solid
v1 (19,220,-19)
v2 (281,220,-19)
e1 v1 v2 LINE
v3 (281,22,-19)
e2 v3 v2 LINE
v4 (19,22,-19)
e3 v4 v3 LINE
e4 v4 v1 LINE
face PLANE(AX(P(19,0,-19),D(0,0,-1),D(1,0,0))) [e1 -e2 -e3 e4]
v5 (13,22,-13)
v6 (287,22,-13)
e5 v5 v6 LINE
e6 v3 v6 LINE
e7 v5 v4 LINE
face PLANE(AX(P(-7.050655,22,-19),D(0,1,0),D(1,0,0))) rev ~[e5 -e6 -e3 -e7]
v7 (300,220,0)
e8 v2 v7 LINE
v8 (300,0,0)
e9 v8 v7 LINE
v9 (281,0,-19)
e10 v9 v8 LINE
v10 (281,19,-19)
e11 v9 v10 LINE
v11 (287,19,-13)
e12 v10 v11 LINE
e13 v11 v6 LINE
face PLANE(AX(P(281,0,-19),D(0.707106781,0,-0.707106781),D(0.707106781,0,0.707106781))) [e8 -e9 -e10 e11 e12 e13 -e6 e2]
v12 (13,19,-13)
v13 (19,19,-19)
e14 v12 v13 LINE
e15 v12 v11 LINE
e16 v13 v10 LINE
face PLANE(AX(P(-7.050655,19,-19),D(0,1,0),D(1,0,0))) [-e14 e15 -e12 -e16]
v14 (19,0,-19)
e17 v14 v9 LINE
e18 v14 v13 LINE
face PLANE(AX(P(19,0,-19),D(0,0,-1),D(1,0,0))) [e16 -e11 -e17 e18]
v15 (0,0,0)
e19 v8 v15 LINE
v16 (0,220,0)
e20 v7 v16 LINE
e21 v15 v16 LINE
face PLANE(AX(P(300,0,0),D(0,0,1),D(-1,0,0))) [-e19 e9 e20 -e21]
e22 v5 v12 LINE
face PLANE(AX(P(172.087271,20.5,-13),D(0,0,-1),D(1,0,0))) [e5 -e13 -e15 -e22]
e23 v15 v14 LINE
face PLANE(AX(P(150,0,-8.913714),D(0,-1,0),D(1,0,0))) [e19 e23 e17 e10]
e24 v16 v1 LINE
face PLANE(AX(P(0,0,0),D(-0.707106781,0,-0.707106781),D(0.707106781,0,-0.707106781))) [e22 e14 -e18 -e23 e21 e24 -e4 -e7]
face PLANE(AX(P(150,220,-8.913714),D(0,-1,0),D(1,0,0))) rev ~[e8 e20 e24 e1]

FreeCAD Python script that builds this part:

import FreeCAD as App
import Part
import Sketcher
from FreeCAD import Vector

doc = App.newDocument("Part")
body = doc.addObject("PartDesign::Body", "Body")

# Sketch on XZ plane
sketch1 = body.newObject("Sketcher::SketchObject", "Sketch")
sketch1.AttachmentSupport = (doc.getObject("XZ_Plane"), [""])
sketch1.MapMode = "FlatFace"
sketch1.addGeometry([
    Part.LineSegment(Vector(300, 0, 0), Vector(0, 0, 0)),
    Part.LineSegment(Vector(0, 0, 0), Vector(19, -19, 0)),
    Part.LineSegment(Vector(19, -19, 0), Vector(281, -19, 0)),
    Part.LineSegment(Vector(281, -19, 0), Vector(300, 0, 0)),
], False)
sketch1.addConstraint([
    Sketcher.Constraint("Coincident", 0, 2, 1, 1),
    Sketcher.Constraint("Coincident", 1, 2, 2, 1),
    Sketcher.Constraint("Coincident", 2, 2, 3, 1),
    Sketcher.Constraint("Coincident", 3, 2, 0, 1),
    Sketcher.Constraint("Horizontal", 0),
    Sketcher.Constraint("Horizontal", 2),
    Sketcher.Constraint("Coincident", 0, 2, -1, 1),
    Sketcher.Constraint("Perpendicular", 1, 3),
    Sketcher.Constraint("Equal", 1, 3),
    Sketcher.Constraint("DistanceX", 0, 2, 0, 1, 300.0),
    Sketcher.Constraint("DistanceX", 2, 1, 2, 2, 262.0),
])
pad1 = body.newObject("PartDesign::Pad", "Pad")
pad1.Profile = sketch1
pad1.Length = 220
pad1.Reversed = True

# Sketch on XY plane
sketch2 = body.newObject("Sketcher::SketchObject", "Sketch001")
sketch2.AttachmentSupport = (doc.getObject("XY_Plane"), [""])
sketch2.MapMode = "FlatFace"
sketch2.AttachmentOffset = App.Placement(Vector(0, 0, -19), App.Rotation())
sketch2.addGeometry([
    Part.LineSegment(Vector(-7.050655, 19, 0), Vector(-7.050655, 22, 0)),
    Part.LineSegment(Vector(-7.050655, 22, 0), Vector(351.225196, 22, 0)),
    Part.LineSegment(Vector(351.225196, 22, 0), Vector(351.225196, 19, 0)),
    Part.LineSegment(Vector(351.225196, 19, 0), Vector(-7.050655, 19, 0)),
], False)
sketch2.addConstraint([
    Sketcher.Constraint("Coincident", 0, 2, 1, 1),
    Sketcher.Constraint("Coincident", 1, 2, 2, 1),
    Sketcher.Constraint("Coincident", 2, 2, 3, 1),
    Sketcher.Constraint("Coincident", 3, 2, 0, 1),
    Sketcher.Constraint("Vertical", 0),
    Sketcher.Constraint("Horizontal", 1),
    Sketcher.Constraint("Vertical", 2),
    Sketcher.Constraint("Horizontal", 3),
    Sketcher.Constraint("DistanceY", 0, 1, 0, 2, 3.0),
    Sketcher.Constraint("DistanceY", -1, 1, 0, 2, 22.0),
    Sketcher.Constraint("DistanceX", 1, 1, 1, 2, 358.275851),
    Sketcher.Constraint("DistanceX", 0, 2, -1, 1, 7.050655),
])
pocket1 = body.newObject("PartDesign::Pocket", "Pocket")
pocket1.Profile = sketch2
pocket1.Length = 6
pocket1.Reversed = True

doc.recompute()
